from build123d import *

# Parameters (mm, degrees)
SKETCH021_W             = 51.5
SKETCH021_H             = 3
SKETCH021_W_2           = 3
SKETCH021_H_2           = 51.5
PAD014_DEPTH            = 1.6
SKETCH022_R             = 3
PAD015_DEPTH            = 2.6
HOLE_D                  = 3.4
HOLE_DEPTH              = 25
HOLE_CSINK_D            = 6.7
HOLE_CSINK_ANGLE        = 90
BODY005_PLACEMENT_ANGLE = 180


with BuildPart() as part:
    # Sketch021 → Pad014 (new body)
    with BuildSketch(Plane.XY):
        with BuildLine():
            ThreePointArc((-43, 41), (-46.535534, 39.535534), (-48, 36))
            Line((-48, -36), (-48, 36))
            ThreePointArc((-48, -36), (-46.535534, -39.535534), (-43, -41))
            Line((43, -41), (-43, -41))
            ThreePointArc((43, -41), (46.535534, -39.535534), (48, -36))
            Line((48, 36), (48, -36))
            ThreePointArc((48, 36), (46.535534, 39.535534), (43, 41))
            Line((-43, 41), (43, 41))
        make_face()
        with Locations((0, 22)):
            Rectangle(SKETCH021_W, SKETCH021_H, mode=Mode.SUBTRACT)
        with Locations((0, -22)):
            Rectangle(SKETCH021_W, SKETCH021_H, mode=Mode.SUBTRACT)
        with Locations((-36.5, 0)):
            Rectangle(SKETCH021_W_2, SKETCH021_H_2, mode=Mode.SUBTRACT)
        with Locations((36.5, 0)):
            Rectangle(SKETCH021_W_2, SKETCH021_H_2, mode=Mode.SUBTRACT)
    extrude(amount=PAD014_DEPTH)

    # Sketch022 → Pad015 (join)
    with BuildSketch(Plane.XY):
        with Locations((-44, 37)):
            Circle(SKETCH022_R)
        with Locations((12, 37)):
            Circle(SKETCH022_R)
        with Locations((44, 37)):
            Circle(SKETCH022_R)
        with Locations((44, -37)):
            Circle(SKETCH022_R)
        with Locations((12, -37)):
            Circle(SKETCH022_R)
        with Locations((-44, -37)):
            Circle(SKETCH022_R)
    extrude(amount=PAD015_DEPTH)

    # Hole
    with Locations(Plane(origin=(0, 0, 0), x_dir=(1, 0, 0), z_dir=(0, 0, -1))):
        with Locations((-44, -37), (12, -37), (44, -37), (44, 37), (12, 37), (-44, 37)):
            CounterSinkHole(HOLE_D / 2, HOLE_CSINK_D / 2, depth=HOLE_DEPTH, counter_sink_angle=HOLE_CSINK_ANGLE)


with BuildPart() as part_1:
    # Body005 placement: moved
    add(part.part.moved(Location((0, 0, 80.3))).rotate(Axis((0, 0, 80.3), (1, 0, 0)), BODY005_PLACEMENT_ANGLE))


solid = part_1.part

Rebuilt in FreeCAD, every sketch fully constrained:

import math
import FreeCAD as App
import Part
import Sketcher

V = App.Vector
Q = App.Units.Quantity

doc = App.newDocument("Part")
body = doc.addObject("PartDesign::Body", "Body")

# Sketch on XY plane
sketch1 = body.newObject("Sketcher::SketchObject", "Sketch")
sketch1.AttachmentSupport = (doc.getObject("XY_Plane"), [""])
sketch1.MapMode = "FlatFace"
sketch1.addGeometry([
    Part.ArcOfCircle(Part.Circle(V(-43, 36, 0), V(0, 0, 1), 5), math.radians(89.999996), math.radians(180.000004)),  # 0
    Part.LineSegment(V(-48, 36, 0), V(-48, -36, 0)),  # 1
    Part.ArcOfCircle(Part.Circle(V(-43, -36, 0), V(0, 0, 1), 5), math.radians(179.999996), math.radians(270.000004)),  # 2
    Part.LineSegment(V(-43, -41, 0), V(43, -41, 0)),  # 3
    Part.ArcOfCircle(Part.Circle(V(43, -36, 0), V(0, 0, 1), 5), math.radians(-90.000004), math.radians(0.000004)),  # 4
    Part.LineSegment(V(48, -36, 0), V(48, 36, 0)),  # 5
    Part.ArcOfCircle(Part.Circle(V(43, 36, 0), V(0, 0, 1), 5), math.radians(-0.000004), math.radians(90.000004)),  # 6
    Part.LineSegment(V(43, 41, 0), V(-43, 41, 0)),  # 7
    Part.LineSegment(V(-35, -25.75, 0), V(-38, -25.75, 0)),  # 8
    Part.LineSegment(V(-38, -25.75, 0), V(-38, 25.75, 0)),  # 9
    Part.LineSegment(V(-38, 25.75, 0), V(-35, 25.75, 0)),  # 10
    Part.LineSegment(V(-35, 25.75, 0), V(-35, -25.75, 0)),  # 11
    Part.LineSegment(V(25.75, -23.5, 0), V(-25.75, -23.5, 0)),  # 12
    Part.LineSegment(V(-25.75, -23.5, 0), V(-25.75, -20.5, 0)),  # 13
    Part.LineSegment(V(-25.75, -20.5, 0), V(25.75, -20.5, 0)),  # 14
    Part.LineSegment(V(25.75, -20.5, 0), V(25.75, -23.5, 0)),  # 15
    Part.LineSegment(V(38, -25.75, 0), V(35, -25.75, 0)),  # 16
    Part.LineSegment(V(35, -25.75, 0), V(35, 25.75, 0)),  # 17
    Part.LineSegment(V(35, 25.75, 0), V(38, 25.75, 0)),  # 18
    Part.LineSegment(V(38, 25.75, 0), V(38, -25.75, 0)),  # 19
    Part.LineSegment(V(25.75, 20.5, 0), V(-25.75, 20.5, 0)),  # 20
    Part.LineSegment(V(-25.75, 20.5, 0), V(-25.75, 23.5, 0)),  # 21
    Part.LineSegment(V(-25.75, 23.5, 0), V(25.75, 23.5, 0)),  # 22
    Part.LineSegment(V(25.75, 23.5, 0), V(25.75, 20.5, 0)),  # 23
], False)
sketch1.addConstraint([
    Sketcher.Constraint("Tangent", 0, 2, 1, 1),
    Sketcher.Constraint("Tangent", 1, 2, 2, 1),
    Sketcher.Constraint("Tangent", 2, 2, 3, 1),
    Sketcher.Constraint("Tangent", 3, 2, 4, 1),
    Sketcher.Constraint("Tangent", 4, 2, 5, 1),
    Sketcher.Constraint("Tangent", 5, 2, 6, 1),
    Sketcher.Constraint("Tangent", 6, 2, 7, 1),
    Sketcher.Constraint("Tangent", 7, 2, 0, 1),
    Sketcher.Constraint("Coincident", 8, 2, 9, 1),
    Sketcher.Constraint("Coincident", 9, 2, 10, 1),
    Sketcher.Constraint("Coincident", 10, 2, 11, 1),
    Sketcher.Constraint("Coincident", 11, 2, 8, 1),
    Sketcher.Constraint("Coincident", 12, 2, 13, 1),
    Sketcher.Constraint("Coincident", 13, 2, 14, 1),
    Sketcher.Constraint("Coincident", 14, 2, 15, 1),
    Sketcher.Constraint("Coincident", 15, 2, 12, 1),
    Sketcher.Constraint("Coincident", 16, 2, 17, 1),
    Sketcher.Constraint("Coincident", 17, 2, 18, 1),
    Sketcher.Constraint("Coincident", 18, 2, 19, 1),
    Sketcher.Constraint("Coincident", 19, 2, 16, 1),
    Sketcher.Constraint("Coincident", 20, 2, 21, 1),
    Sketcher.Constraint("Coincident", 21, 2, 22, 1),
    Sketcher.Constraint("Coincident", 22, 2, 23, 1),
    Sketcher.Constraint("Coincident", 23, 2, 20, 1),
    Sketcher.Constraint("Vertical", 1),
    Sketcher.Constraint("Horizontal", 3),
    Sketcher.Constraint("Vertical", 5),
    Sketcher.Constraint("Horizontal", 7),
    Sketcher.Constraint("Horizontal", 8),
    Sketcher.Constraint("Vertical", 9),
    Sketcher.Constraint("Horizontal", 10),
    Sketcher.Constraint("Vertical", 11),
    Sketcher.Constraint("Horizontal", 12),
    Sketcher.Constraint("Vertical", 13),
    Sketcher.Constraint("Horizontal", 14),
    Sketcher.Constraint("Vertical", 15),
    Sketcher.Constraint("Horizontal", 16),
    Sketcher.Constraint("Vertical", 17),
    Sketcher.Constraint("Horizontal", 18),
    Sketcher.Constraint("Vertical", 19),
    Sketcher.Constraint("Horizontal", 20),
    Sketcher.Constraint("Vertical", 21),
    Sketcher.Constraint("Horizontal", 22),
    Sketcher.Constraint("Vertical", 23),
    Sketcher.Constraint("Equal", 0, 2),
    Sketcher.Constraint("Equal", 2, 4),
    Sketcher.Constraint("Equal", 4, 6),
    Sketcher.Constraint("Symmetric", 0, 3, 4, 3, -1, 1),
    Sketcher.Constraint("Symmetric", 10, 2, 16, 2, -1, 1),
    Sketcher.Constraint("Symmetric", 8, 2, 18, 2, -1, 1),
    Sketcher.Constraint("Symmetric", 14, 2, 20, 2, -1, 1),
    Sketcher.Constraint("Symmetric", 12, 2, 22, 2, -1, 1),
    Sketcher.Constraint("Horizontal", 11, 2, 16, 2),
    Sketcher.Constraint("Vertical", 13, 2, 20, 2),
    Sketcher.Constraint("Equal", 22, 9),
    Sketcher.Constraint("Equal", 18, 13),
    Sketcher.Constraint("Radius", 0, Q("5 mm")),
    Sketcher.Constraint("DistanceX", 3, 1, 3, 2, Q("86 mm")),
    Sketcher.Constraint("DistanceX", 8, 2, 8, 1, Q("3 mm")),
    Sketcher.Constraint("DistanceY", 1, 2, 1, 1, Q("72 mm")),
    Sketcher.Constraint("DistanceX", 12, 2, 12, 1, Q("51.5 mm")),
    Sketcher.Constraint("DistanceX", 8, 2, -1, 1, Q("38 mm")),
    Sketcher.Constraint("DistanceY", 12, 2, -1, 1, Q("23.5 mm")),
])
pad1 = body.newObject("PartDesign::Pad", "Pad")
pad1.Profile = sketch1
pad1.Length = 1.6

# Sketch on XY plane
sketch2 = body.newObject("Sketcher::SketchObject", "Sketch001")
sketch2.AttachmentSupport = (doc.getObject("XY_Plane"), [""])
sketch2.MapMode = "FlatFace"
sketch2.addGeometry([
    Part.Circle(V(-44, 37, 0), V(0, 0, 1), 3),  # 0
    Part.Circle(V(12, 37, 0), V(0, 0, 1), 3),  # 1
    Part.Circle(V(44, 37, 0), V(0, 0, 1), 3),  # 2
    Part.Circle(V(44, -37, 0), V(0, 0, 1), 3),  # 3
    Part.Circle(V(12, -37, 0), V(0, 0, 1), 3),  # 4
    Part.Circle(V(-44, -37, 0), V(0, 0, 1), 3),  # 5
], False)
sketch2.addConstraint([
    Sketcher.Constraint("Equal", 0, 1),
    Sketcher.Constraint("Equal", 1, 2),
    Sketcher.Constraint("Equal", 2, 3),
    Sketcher.Constraint("Equal", 3, 4),
    Sketcher.Constraint("Equal", 4, 5),
    Sketcher.Constraint("Symmetric", 0, 3, 3, 3, -1, 1),
    Sketcher.Constraint("Symmetric", 2, 3, 5, 3, -1, 1),
    Sketcher.Constraint("Symmetric", 0, 3, 2, 3, -2),
    Sketcher.Constraint("Symmetric", 1, 3, 4, 3, -1),
    Sketcher.Constraint("Horizontal", 0, 3, 1, 3),
    Sketcher.Constraint("Diameter", 0, Q("6 mm")),
    Sketcher.Constraint("DistanceX", 0, 3, -1, 1, Q("44 mm")),
    Sketcher.Constraint("DistanceY", -1, 1, 0, 3, Q("37 mm")),
    Sketcher.Constraint("DistanceX", -1, 1, 1, 3, Q("12 mm")),
])
pad2 = body.newObject("PartDesign::Pad", "Pad001")
pad2.Profile = sketch2
pad2.Length = 2.6

# Sketch on XY plane
sketch3 = body.newObject("Sketcher::SketchObject", "Sketch002")
sketch3.AttachmentSupport = (doc.getObject("XY_Plane"), [""])
sketch3.MapMode = "FlatFace"
sketch3.addGeometry([
    Part.Circle(V(-44, 37, 0), V(0, 0, 1), 1.7),  # 0
    Part.Circle(V(12, 37, 0), V(0, 0, 1), 1.7),  # 1
    Part.Circle(V(44, 37, 0), V(0, 0, 1), 1.7),  # 2
    Part.Circle(V(44, -37, 0), V(0, 0, 1), 1.7),  # 3
    Part.Circle(V(12, -37, 0), V(0, 0, 1), 1.7),  # 4
    Part.Circle(V(-44, -37, 0), V(0, 0, 1), 1.7),  # 5
], False)
sketch3.addConstraint([
    Sketcher.Constraint("Equal", 0, 1),
    Sketcher.Constraint("Equal", 1, 2),
    Sketcher.Constraint("Equal", 2, 3),
    Sketcher.Constraint("Equal", 3, 4),
    Sketcher.Constraint("Equal", 4, 5),
    Sketcher.Constraint("Symmetric", 0, 3, 3, 3, -1, 1),
    Sketcher.Constraint("Symmetric", 2, 3, 5, 3, -1, 1),
    Sketcher.Constraint("Symmetric", 0, 3, 2, 3, -2),
    Sketcher.Constraint("Symmetric", 1, 3, 4, 3, -1),
    Sketcher.Constraint("Horizontal", 0, 3, 1, 3),
    Sketcher.Constraint("Diameter", 0, Q("3.4 mm")),
    Sketcher.Constraint("DistanceX", 0, 3, -1, 1, Q("44 mm")),
    Sketcher.Constraint("DistanceY", -1, 1, 0, 3, Q("37 mm")),
    Sketcher.Constraint("DistanceX", -1, 1, 1, 3, Q("12 mm")),
])
doc.recompute()
hole = body.newObject("PartDesign::Hole", "Hole")
hole.Profile = sketch3
hole.ThreadType = "None"
hole.Diameter = 3.4
hole.DepthType = "Dimension"
hole.Depth = 25
hole.DrillPoint = "Flat"
hole.HoleCutType = "Countersink"
hole.HoleCutDiameter = 6.7
hole.HoleCutCountersinkAngle = 90
hole.Reversed = True
body2 = doc.addObject("PartDesign::Body", "Body001")
doc.recompute()

body.Placement = App.Placement(V(0, 0, 80.3), App.Rotation(V(1, 0, 0), 180))
boolean = body2.newObject("PartDesign::Boolean", "Boolean")
boolean.Type = "Fuse"
boolean.addObjects([body])

doc.recompute()
